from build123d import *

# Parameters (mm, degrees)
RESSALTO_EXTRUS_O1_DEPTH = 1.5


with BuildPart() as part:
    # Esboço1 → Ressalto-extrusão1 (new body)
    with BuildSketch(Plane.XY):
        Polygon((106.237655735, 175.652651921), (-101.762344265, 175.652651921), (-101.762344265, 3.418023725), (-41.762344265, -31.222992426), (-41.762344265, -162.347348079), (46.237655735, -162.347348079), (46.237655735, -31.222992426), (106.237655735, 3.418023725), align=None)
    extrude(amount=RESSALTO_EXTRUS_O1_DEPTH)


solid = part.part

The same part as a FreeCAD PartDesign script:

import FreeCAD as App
import Part
import Sketcher
from FreeCAD import Vector
Q = App.Units.Quantity

doc = App.newDocument("Part")
body = doc.addObject("PartDesign::Body", "Body")

sketch1 = doc.addObject("Sketcher::SketchObject", "Sketch")
body.addObject(sketch1)
sketch1.AttachmentSupport = (doc.XY_Plane, [""])
sketch1.MapMode = "FlatFace"
sketch1.addGeometry([
    Part.LineSegment(Vector(106, 176, 0), Vector(-102, 176, 0)),
    Part.LineSegment(Vector(-102, 176, 0), Vector(-102, 3, 0)),
    Part.LineSegment(Vector(-102, 3, 0), Vector(-42, -31, 0)),
    Part.LineSegment(Vector(-42, -31, 0), Vector(-42, -162, 0)),
    Part.LineSegment(Vector(-42, -162, 0), Vector(46, -162, 0)),
    Part.LineSegment(Vector(46, -162, 0), Vector(46, -31, 0)),
    Part.LineSegment(Vector(46, -31, 0), Vector(106, 3, 0)),
    Part.LineSegment(Vector(106, 3, 0), Vector(106, 176, 0)),
], False)
sketch1.addConstraint([
    Sketcher.Constraint("Coincident", 0, 2, 1, 1),
    Sketcher.Constraint("Coincident", 1, 2, 2, 1),
    Sketcher.Constraint("Coincident", 2, 2, 3, 1),
    Sketcher.Constraint("Coincident", 3, 2, 4, 1),
    Sketcher.Constraint("Coincident", 4, 2, 5, 1),
    Sketcher.Constraint("Coincident", 5, 2, 6, 1),
    Sketcher.Constraint("Coincident", 6, 2, 7, 1),
    Sketcher.Constraint("Coincident", 7, 2, 0, 1),
    Sketcher.Constraint("Horizontal", 0),
    Sketcher.Constraint("Vertical", 1),
    Sketcher.Constraint("Vertical", 3),
    Sketcher.Constraint("Horizontal", 4),
    Sketcher.Constraint("Vertical", 5),
    Sketcher.Constraint("Vertical", 7),
    Sketcher.Constraint("Horizontal", 2, 2, 5, 2),
    Sketcher.Constraint("Horizontal", 1, 2, 6, 2),
    Sketcher.Constraint("Equal", 2, 6),
    Sketcher.Constraint("DistanceX", 0, 2, 0, 1, Q("208 mm")),
    Sketcher.Constraint("DistanceX", 4, 1, 4, 2, Q("88 mm")),
    Sketcher.Constraint("Angle", 2, Q("-30 deg")),
    Sketcher.Constraint("DistanceY", 3, 2, 0, 2, Q("338 mm")),
    Sketcher.Constraint("DistanceY", 1, 2, 1, 1, Q("172.234628 mm")),
    Sketcher.Constraint("DistanceY", -1, 1, 0, 2, Q("175.652652 mm")),
    Sketcher.Constraint("DistanceX", 0, 2, -1, 1, Q("101.762344 mm")),
])
pad1 = doc.addObject("PartDesign::Pad", "Pad")
body.addObject(pad1)
pad1.Profile = sketch1
pad1.Length = 1.5

doc.recompute()
